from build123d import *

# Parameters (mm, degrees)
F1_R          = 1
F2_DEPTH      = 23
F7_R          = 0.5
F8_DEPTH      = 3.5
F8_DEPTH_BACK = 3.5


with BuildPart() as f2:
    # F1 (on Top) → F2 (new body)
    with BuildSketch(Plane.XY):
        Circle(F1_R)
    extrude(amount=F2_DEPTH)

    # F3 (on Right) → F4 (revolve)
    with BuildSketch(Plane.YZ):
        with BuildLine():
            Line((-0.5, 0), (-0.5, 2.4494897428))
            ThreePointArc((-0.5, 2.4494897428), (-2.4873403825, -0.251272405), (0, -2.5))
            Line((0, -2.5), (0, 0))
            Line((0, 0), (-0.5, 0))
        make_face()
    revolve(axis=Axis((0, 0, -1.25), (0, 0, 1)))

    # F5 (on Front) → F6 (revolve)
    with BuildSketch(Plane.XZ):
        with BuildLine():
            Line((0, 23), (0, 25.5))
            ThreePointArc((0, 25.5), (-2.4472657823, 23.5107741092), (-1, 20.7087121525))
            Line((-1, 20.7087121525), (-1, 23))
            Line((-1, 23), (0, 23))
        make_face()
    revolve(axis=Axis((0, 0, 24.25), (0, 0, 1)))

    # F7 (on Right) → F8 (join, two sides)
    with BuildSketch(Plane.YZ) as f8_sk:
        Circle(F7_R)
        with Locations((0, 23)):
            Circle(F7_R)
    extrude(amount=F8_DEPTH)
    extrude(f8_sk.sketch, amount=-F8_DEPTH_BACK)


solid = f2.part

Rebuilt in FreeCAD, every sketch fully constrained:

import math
import FreeCAD as App
import Part
import Sketcher

V = App.Vector
Q = App.Units.Quantity

doc = App.newDocument("Part")
params = doc.addObject("Spreadsheet::Sheet", "Params")
for row, (alias, value) in enumerate([
    ("sketch1_diameter", "2 mm"),
    ("pad1_length", "23 mm"),
    ("sketch2_radius", "2.5 mm"),
    ("sketch2_width", "0.5 mm"),
    ("revolution_angle", "360 deg"),
    ("sketch3_radius", "2.5 mm"),
    ("sketch3_width", "1 mm"),
    ("revolution2_angle", "360 deg"),
    ("sketch4_diameter", "1 mm"),
    ("pad2_length", "3.5 mm"),
    ("pad2_length2", "3.5 mm"),
], start=1):
    params.set(f"A{row}", alias)
    params.set(f"B{row}", "=" + value)
    params.setAlias(f"B{row}", alias)

body = doc.addObject("PartDesign::Body", "Body")

sketch1 = body.newObject("Sketcher::SketchObject", "Sketch")
sketch1.AttachmentSupport = (doc.getObject("XY_Plane"), [""])
sketch1.MapMode = "FlatFace"
sketch1.addGeometry(Part.Circle(V(0, 0, 0), V(0, 0, 1), 1), False)
sketch1.addConstraint([
    Sketcher.Constraint("Coincident", 0, 3, -1, 1),
    Sketcher.Constraint("Diameter", 0, Q("2 mm")),
])
sketch1.setExpression("Constraints[1]", "Params.sketch1_diameter")
pad1 = body.newObject("PartDesign::Pad", "Pad")
pad1.Profile = sketch1
pad1.setExpression("Length", "Params.pad1_length")

sketch2 = body.newObject("Sketcher::SketchObject", "Sketch001")
sketch2.AttachmentSupport = (doc.getObject("YZ_Plane"), [""])
sketch2.MapMode = "FlatFace"
sketch2.addGeometry([
    Part.LineSegment(V(-0.5, 0, 0), V(-0.5, 2.4, 0)),
    Part.ArcOfCircle(Part.Circle(V(0, 0, 0), V(0, 0, 1), 2.5), math.radians(102), math.radians(270)),
    Part.LineSegment(V(0, -2.5, 0), V(0, 0, 0)),
    Part.LineSegment(V(0, 0, 0), V(-0.5, 0, 0)),
], False)
sketch2.addConstraint([
    Sketcher.Constraint("Coincident", 0, 2, 1, 1),
    Sketcher.Constraint("Coincident", 1, 2, 2, 1),
    Sketcher.Constraint("Coincident", 2, 2, 3, 1),
    Sketcher.Constraint("Coincident", 3, 2, 0, 1),
    Sketcher.Constraint("Vertical", 0),
    Sketcher.Constraint("Vertical", 2),
    Sketcher.Constraint("Horizontal", 3),
    Sketcher.Constraint("Coincident", 1, 3, -1, 1),
    Sketcher.Constraint("Coincident", 2, 2, -1, 1),
    Sketcher.Constraint("Radius", 1, Q("2.5 mm")),
    Sketcher.Constraint("DistanceX", 3, 2, 3, 1, Q("0.5 mm")),
])
sketch2.setExpression("Constraints[9]", "Params.sketch2_radius")
sketch2.setExpression("Constraints[10]", "Params.sketch2_width")
revolution = body.newObject("PartDesign::Revolution", "Revolution")
revolution.Profile = sketch2
revolution.ReferenceAxis = (sketch2, ["V_Axis"])
revolution.setExpression("Angle", "Params.revolution_angle")

sketch3 = body.newObject("Sketcher::SketchObject", "Sketch002")
sketch3.AttachmentSupport = (doc.getObject("XZ_Plane"), [""])
sketch3.MapMode = "FlatFace"
sketch3.addGeometry([
    Part.LineSegment(V(0, 23, 0), V(0, 25.5, 0)),
    Part.ArcOfCircle(Part.Circle(V(0, 23, 0), V(0, 0, 1), 2.5), math.radians(90), math.radians(246)),
    Part.LineSegment(V(-1, 20.7, 0), V(-1, 23, 0)),
    Part.LineSegment(V(-1, 23, 0), V(0, 23, 0)),
], False)
sketch3.addConstraint([
    Sketcher.Constraint("Coincident", 0, 2, 1, 1),
    Sketcher.Constraint("Coincident", 1, 2, 2, 1),
    Sketcher.Constraint("Coincident", 2, 2, 3, 1),
    Sketcher.Constraint("Coincident", 3, 2, 0, 1),
    Sketcher.Constraint("Vertical", 0),
    Sketcher.Constraint("Vertical", 2),
    Sketcher.Constraint("Horizontal", 3),
    Sketcher.Constraint("Coincident", 3, 2, 1, 3),
    Sketcher.Constraint("PointOnObject", 1, 3, -2),
    Sketcher.Constraint("Radius", 1, Q("2.5 mm")),
    Sketcher.Constraint("DistanceX", 3, 1, 3, 2, Q("1 mm")),
    Sketcher.Constraint("DistanceY", -1, 1, 1, 3, Q("23 mm")),
])
sketch3.setExpression("Constraints[9]", "Params.sketch3_radius")
sketch3.setExpression("Constraints[10]", "Params.sketch3_width")
revolution2 = body.newObject("PartDesign::Revolution", "Revolution001")
revolution2.Profile = sketch3
revolution2.ReferenceAxis = (sketch3, ["V_Axis"])
revolution2.setExpression("Angle", "Params.revolution2_angle")

sketch4 = body.newObject("Sketcher::SketchObject", "Sketch003")
sketch4.AttachmentSupport = (doc.getObject("YZ_Plane"), [""])
sketch4.MapMode = "FlatFace"
sketch4.addGeometry([
    Part.Circle(V(0, 0, 0), V(0, 0, 1), 0.5),
    Part.Circle(V(0, 23, 0), V(0, 0, 1), 0.5),
], False)
sketch4.addConstraint([
    Sketcher.Constraint("Coincident", 0, 3, -1, 1),
    Sketcher.Constraint("Equal", 0, 1),
    Sketcher.Constraint("PointOnObject", 1, 3, -2),
    Sketcher.Constraint("Diameter", 0, Q("1 mm")),
    Sketcher.Constraint("DistanceY", -1, 1, 1, 3, Q("23 mm")),
])
sketch4.setExpression("Constraints[3]", "Params.sketch4_diameter")
pad2 = body.newObject("PartDesign::Pad", "Pad001")
pad2.Profile = sketch4
pad2.Type = "TwoLengths"
pad2.setExpression("Length", "Params.pad2_length")
pad2.setExpression("Length2", "Params.pad2_length2")

doc.recompute()
